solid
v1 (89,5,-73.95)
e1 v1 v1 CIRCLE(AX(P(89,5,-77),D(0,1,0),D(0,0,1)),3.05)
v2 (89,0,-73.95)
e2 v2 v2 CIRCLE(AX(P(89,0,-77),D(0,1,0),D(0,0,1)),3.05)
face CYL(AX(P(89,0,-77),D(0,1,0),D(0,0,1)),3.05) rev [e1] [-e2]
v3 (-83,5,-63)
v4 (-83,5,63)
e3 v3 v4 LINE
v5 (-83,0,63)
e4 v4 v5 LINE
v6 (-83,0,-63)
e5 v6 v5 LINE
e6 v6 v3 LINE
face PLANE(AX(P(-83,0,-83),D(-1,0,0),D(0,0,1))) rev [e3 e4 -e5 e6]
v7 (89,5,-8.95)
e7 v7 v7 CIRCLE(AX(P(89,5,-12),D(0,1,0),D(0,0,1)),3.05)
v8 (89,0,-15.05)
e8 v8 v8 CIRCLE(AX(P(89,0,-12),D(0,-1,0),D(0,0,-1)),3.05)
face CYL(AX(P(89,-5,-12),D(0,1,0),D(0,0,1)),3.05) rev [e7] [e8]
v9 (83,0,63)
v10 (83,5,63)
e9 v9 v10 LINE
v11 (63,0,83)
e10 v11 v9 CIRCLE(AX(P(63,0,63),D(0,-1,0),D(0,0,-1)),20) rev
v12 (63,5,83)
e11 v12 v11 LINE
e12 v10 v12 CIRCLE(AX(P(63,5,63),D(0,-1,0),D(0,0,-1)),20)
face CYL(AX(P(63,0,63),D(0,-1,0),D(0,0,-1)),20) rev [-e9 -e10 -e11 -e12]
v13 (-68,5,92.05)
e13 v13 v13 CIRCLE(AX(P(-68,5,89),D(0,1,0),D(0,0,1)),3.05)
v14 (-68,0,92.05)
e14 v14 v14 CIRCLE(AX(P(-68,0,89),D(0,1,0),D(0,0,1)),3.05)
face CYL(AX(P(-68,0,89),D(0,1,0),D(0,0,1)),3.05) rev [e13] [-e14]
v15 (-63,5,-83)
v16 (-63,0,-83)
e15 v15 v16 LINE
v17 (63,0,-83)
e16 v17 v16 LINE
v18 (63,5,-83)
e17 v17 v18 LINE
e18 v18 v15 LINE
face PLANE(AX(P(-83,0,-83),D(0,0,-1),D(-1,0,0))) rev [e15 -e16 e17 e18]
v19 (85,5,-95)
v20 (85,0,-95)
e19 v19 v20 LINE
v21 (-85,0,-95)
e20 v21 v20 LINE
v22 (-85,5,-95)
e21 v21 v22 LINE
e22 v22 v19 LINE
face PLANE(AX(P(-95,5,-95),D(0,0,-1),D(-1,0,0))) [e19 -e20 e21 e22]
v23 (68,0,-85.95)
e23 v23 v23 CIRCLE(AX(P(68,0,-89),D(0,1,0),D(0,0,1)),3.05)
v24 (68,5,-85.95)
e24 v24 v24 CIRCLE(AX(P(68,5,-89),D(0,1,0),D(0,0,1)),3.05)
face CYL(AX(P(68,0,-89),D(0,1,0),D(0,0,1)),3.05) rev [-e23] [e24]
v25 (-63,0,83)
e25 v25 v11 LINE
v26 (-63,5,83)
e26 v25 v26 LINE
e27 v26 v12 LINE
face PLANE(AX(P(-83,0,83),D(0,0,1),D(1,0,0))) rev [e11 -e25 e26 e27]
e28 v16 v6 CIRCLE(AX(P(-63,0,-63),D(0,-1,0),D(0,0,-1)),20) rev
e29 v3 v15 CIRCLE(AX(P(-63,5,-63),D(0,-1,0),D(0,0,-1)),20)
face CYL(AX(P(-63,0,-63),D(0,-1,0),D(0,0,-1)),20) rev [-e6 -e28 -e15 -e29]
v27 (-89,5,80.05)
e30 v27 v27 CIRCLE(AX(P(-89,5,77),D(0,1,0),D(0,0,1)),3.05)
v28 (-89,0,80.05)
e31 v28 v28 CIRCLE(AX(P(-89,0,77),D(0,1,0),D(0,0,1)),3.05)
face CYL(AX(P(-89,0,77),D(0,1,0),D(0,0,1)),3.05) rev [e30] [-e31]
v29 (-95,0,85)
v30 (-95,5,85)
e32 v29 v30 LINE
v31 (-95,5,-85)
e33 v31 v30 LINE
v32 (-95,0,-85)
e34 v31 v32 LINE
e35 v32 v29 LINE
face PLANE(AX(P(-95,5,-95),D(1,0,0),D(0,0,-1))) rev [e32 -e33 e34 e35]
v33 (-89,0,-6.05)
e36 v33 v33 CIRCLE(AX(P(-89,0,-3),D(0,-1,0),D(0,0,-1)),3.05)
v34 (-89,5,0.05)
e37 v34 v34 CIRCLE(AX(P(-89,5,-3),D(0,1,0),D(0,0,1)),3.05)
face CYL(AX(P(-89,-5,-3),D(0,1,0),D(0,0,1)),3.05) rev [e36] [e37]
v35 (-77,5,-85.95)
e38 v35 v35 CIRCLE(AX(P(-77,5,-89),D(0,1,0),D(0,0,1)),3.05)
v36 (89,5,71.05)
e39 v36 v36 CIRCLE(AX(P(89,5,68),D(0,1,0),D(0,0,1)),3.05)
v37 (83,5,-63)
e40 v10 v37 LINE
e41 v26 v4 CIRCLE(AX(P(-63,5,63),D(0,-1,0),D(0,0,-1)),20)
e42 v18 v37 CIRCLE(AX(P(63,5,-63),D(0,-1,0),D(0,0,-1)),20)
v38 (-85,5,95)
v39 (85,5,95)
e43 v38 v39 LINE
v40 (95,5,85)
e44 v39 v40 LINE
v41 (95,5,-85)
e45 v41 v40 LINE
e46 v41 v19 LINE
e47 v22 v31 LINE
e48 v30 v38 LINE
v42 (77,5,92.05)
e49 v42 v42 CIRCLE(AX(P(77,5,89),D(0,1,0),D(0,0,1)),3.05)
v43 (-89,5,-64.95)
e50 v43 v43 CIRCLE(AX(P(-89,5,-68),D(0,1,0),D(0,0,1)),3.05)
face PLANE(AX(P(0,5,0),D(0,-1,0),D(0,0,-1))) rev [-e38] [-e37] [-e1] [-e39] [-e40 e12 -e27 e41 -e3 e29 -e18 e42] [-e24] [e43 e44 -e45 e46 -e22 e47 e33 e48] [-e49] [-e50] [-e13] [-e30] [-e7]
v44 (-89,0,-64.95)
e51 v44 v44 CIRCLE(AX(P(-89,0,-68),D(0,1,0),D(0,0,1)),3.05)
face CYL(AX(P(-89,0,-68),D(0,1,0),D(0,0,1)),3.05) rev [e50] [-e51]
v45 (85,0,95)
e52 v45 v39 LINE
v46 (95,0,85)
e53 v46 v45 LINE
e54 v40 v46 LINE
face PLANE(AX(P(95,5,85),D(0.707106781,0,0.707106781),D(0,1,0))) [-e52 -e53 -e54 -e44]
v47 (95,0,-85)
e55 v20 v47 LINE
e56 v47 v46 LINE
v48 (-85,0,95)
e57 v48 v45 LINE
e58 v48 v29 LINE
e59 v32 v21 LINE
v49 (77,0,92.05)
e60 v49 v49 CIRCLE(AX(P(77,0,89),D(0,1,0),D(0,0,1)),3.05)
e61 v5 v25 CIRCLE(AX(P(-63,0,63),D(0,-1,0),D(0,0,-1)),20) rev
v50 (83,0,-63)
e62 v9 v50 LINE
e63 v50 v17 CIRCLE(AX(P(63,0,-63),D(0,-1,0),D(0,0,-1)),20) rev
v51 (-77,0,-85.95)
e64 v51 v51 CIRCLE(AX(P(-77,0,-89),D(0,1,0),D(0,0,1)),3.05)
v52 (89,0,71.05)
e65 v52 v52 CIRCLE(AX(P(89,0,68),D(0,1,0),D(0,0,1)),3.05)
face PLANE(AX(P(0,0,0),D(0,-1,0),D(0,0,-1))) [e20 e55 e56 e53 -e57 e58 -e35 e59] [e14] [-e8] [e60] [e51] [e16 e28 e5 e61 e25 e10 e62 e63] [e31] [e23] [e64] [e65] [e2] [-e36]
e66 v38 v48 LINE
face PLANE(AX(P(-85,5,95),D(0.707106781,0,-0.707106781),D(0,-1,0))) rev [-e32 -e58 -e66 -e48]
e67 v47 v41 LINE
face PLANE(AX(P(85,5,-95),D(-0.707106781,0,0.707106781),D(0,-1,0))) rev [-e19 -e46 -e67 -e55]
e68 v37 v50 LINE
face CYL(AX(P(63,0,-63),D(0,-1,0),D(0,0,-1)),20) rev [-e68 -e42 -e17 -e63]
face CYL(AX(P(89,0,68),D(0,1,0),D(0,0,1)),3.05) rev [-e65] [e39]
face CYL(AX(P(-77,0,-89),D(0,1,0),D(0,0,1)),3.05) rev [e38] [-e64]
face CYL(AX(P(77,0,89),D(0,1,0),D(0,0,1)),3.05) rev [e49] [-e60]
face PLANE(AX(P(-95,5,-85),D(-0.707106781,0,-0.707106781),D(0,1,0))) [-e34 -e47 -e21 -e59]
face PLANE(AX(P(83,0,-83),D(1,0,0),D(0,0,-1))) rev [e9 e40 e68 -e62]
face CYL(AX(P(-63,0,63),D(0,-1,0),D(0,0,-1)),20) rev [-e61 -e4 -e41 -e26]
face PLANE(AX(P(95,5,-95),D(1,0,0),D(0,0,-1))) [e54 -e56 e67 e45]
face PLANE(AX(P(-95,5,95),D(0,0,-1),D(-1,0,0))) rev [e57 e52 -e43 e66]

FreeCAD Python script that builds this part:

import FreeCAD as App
import Part
import Sketcher

V = App.Vector
Q = App.Units.Quantity


def edges_at(feature, points):
    """Names of the edges that pass closest to the given points."""
    edges = feature.Shape.Edges
    near = lambda p: min(range(len(edges)), key=lambda i: edges[i].distToShape(Part.Vertex(*p))[0])
    return sorted({f"Edge{near(p) + 1}" for p in points})


def add_polygon(sketch, points):
    """Adds a closed chain of lines whose ends are joined by coincident constraints."""
    first, n = sketch.GeometryCount, len(points)
    for a, b in zip(points, points[1:] + points[:1]):
        sketch.addGeometry(Part.LineSegment(App.Vector(*a, 0), App.Vector(*b, 0)), False)
    for i in range(n):
        sketch.addConstraint(Sketcher.Constraint("Coincident", first + i, 2, first + (i + 1) % n, 1))

doc = App.newDocument("Part")
body = doc.addObject("PartDesign::Body", "Body")

# Sketch on XZ plane
sketch1 = body.newObject("Sketcher::SketchObject", "Sketch")
sketch1.AttachmentSupport = (doc.getObject("XZ_Plane"), [""])
sketch1.MapMode = "FlatFace"
add_polygon(sketch1, [(-95, -95), (-95, 95), (95, 95), (95, -95)])  # lines 0-3
sketch1.addConstraint([
    Sketcher.Constraint("Vertical", 0),
    Sketcher.Constraint("Horizontal", 1),
    Sketcher.Constraint("Vertical", 2),
    Sketcher.Constraint("Horizontal", 3),
    Sketcher.Constraint("Symmetric", 0, 2, 2, 2, -1, 1),
    Sketcher.Constraint("Equal", 3, 0),
    Sketcher.Constraint("DistanceX", 1, 1, 1, 2, Q("190 mm")),
])
pad1 = body.newObject("PartDesign::Pad", "Pad")
pad1.Profile = sketch1
pad1.Length = 5
pad1.Reversed = True

# Sketch on XZ plane
sketch2 = body.newObject("Sketcher::SketchObject", "Sketch001")
sketch2.AttachmentSupport = (doc.getObject("XZ_Plane"), [""])
sketch2.MapMode = "FlatFace"
sketch2.AttachmentOffset = App.Placement(V(0, 0, -5), App.Rotation())
add_polygon(sketch2, [(-83, -83), (-83, 83), (83, 83), (83, -83)])  # lines 0-3
sketch2.addConstraint([
    Sketcher.Constraint("Vertical", 0),
    Sketcher.Constraint("Horizontal", 1),
    Sketcher.Constraint("Vertical", 2),
    Sketcher.Constraint("Horizontal", 3),
    Sketcher.Constraint("Symmetric", 0, 2, 2, 2, -1, 1),
    Sketcher.Constraint("Equal", 3, 0),
    Sketcher.Constraint("DistanceX", 1, 1, 1, 2, Q("166 mm")),
])
pocket1 = body.newObject("PartDesign::Pocket", "Pocket")
pocket1.Profile = sketch2
pocket1.Type = "ThroughAll"
pocket1.Reversed = True
doc.recompute()

fillet = body.newObject("PartDesign::Fillet", "Fillet")
fillet.Base = (pocket1, edges_at(pocket1, [
    (83, 2.5, -83),
    (83, 2.5, 83),
    (-83, 2.5, 83),
    (-83, 2.5, -83),
]))
fillet.Radius = 20

# Sketch on XZ plane
sketch3 = body.newObject("Sketcher::SketchObject", "Sketch002")
sketch3.AttachmentSupport = (doc.getObject("XZ_Plane"), [""])
sketch3.MapMode = "FlatFace"
sketch3.AttachmentOffset = App.Placement(V(0, 0, -5), App.Rotation())
sketch3.addGeometry([
    Part.Circle(V(-77, -89, 0), V(0, 0, 1), 3.05),  # 0
    Part.Circle(V(-89, -68, 0), V(0, 0, 1), 3.05),  # 1
    Part.Circle(V(89, -77, 0), V(0, 0, 1), 3.05),  # 2
    Part.Circle(V(68, -89, 0), V(0, 0, 1), 3.05),  # 3
    Part.Circle(V(77, 89, 0), V(0, 0, 1), 3.05),  # 4
    Part.Circle(V(89, 68, 0), V(0, 0, 1), 3.05),  # 5
    Part.Circle(V(-89, 77, 0), V(0, 0, 1), 3.05),  # 6
    Part.Circle(V(-68, 89, 0), V(0, 0, 1), 3.05),  # 7
], False)
sketch3.addConstraint([
    Sketcher.Constraint("Equal", 0, 1),
    Sketcher.Constraint("Equal", 1, 2),
    Sketcher.Constraint("Equal", 2, 3),
    Sketcher.Constraint("Equal", 3, 4),
    Sketcher.Constraint("Equal", 4, 5),
    Sketcher.Constraint("Equal", 5, 6),
    Sketcher.Constraint("Equal", 6, 7),
    Sketcher.Constraint("Symmetric", 0, 3, 4, 3, -1, 1),
    Sketcher.Constraint("Symmetric", 1, 3, 5, 3, -1, 1),
    Sketcher.Constraint("Symmetric", 2, 3, 6, 3, -1, 1),
    Sketcher.Constraint("Symmetric", 3, 3, 7, 3, -1, 1),
    Sketcher.Constraint("Horizontal", 0, 3, 3, 3),
    Sketcher.Constraint("Vertical", 2, 3, 5, 3),
    Sketcher.Constraint("Diameter", 0, Q("6.1 mm")),
    Sketcher.Constraint("DistanceX", 0, 3, -1, 1, Q("77 mm")),
    Sketcher.Constraint("DistanceY", 0, 3, -1, 1, Q("89 mm")),
    Sketcher.Constraint("DistanceX", 1, 3, -1, 1, Q("89 mm")),
    Sketcher.Constraint("DistanceY", 1, 3, -1, 1, Q("68 mm")),
    Sketcher.Constraint("DistanceY", 2, 3, -1, 1, Q("77 mm")),
    Sketcher.Constraint("DistanceX", -1, 1, 3, 3, Q("68 mm")),
])
pocket2 = body.newObject("PartDesign::Pocket", "Pocket001")
pocket2.Profile = sketch3
pocket2.Type = "ThroughAll"
pocket2.Reversed = True

# Sketch on XZ plane
sketch4 = body.newObject("Sketcher::SketchObject", "Sketch003")
sketch4.AttachmentSupport = (doc.getObject("XZ_Plane"), [""])
sketch4.MapMode = "FlatFace"
sketch4.AttachmentOffset = App.Placement(V(0, 0, -5), App.Rotation())
sketch4.addGeometry([
    Part.Circle(V(-89, -3, 0), V(0, 0, 1), 3.05),
    Part.Circle(V(89, -12, 0), V(0, 0, 1), 3.05),
], False)
sketch4.addConstraint([
    Sketcher.Constraint("Equal", 0, 1),
    Sketcher.Constraint("Diameter", 0, Q("6.1 mm")),
    Sketcher.Constraint("DistanceX", 0, 3, -1, 1, Q("89 mm")),
    Sketcher.Constraint("DistanceY", 0, 3, -1, 1, Q("3 mm")),
    Sketcher.Constraint("DistanceX", -1, 1, 1, 3, Q("89 mm")),
    Sketcher.Constraint("DistanceY", 1, 3, -1, 1, Q("12 mm")),
])
pocket3 = body.newObject("PartDesign::Pocket", "Pocket002")
pocket3.Profile = sketch4
pocket3.Length = 10
pocket3.Reversed = True
doc.recompute()

chamfer = body.newObject("PartDesign::Chamfer", "Chamfer")
chamfer.Base = (pocket3, edges_at(pocket3, [
    (-95, 2.5, -95),
    (-95, 2.5, 95),
    (95, 2.5, 95),
    (95, 2.5, -95),
]))
chamfer.Size = 10

doc.recompute()
